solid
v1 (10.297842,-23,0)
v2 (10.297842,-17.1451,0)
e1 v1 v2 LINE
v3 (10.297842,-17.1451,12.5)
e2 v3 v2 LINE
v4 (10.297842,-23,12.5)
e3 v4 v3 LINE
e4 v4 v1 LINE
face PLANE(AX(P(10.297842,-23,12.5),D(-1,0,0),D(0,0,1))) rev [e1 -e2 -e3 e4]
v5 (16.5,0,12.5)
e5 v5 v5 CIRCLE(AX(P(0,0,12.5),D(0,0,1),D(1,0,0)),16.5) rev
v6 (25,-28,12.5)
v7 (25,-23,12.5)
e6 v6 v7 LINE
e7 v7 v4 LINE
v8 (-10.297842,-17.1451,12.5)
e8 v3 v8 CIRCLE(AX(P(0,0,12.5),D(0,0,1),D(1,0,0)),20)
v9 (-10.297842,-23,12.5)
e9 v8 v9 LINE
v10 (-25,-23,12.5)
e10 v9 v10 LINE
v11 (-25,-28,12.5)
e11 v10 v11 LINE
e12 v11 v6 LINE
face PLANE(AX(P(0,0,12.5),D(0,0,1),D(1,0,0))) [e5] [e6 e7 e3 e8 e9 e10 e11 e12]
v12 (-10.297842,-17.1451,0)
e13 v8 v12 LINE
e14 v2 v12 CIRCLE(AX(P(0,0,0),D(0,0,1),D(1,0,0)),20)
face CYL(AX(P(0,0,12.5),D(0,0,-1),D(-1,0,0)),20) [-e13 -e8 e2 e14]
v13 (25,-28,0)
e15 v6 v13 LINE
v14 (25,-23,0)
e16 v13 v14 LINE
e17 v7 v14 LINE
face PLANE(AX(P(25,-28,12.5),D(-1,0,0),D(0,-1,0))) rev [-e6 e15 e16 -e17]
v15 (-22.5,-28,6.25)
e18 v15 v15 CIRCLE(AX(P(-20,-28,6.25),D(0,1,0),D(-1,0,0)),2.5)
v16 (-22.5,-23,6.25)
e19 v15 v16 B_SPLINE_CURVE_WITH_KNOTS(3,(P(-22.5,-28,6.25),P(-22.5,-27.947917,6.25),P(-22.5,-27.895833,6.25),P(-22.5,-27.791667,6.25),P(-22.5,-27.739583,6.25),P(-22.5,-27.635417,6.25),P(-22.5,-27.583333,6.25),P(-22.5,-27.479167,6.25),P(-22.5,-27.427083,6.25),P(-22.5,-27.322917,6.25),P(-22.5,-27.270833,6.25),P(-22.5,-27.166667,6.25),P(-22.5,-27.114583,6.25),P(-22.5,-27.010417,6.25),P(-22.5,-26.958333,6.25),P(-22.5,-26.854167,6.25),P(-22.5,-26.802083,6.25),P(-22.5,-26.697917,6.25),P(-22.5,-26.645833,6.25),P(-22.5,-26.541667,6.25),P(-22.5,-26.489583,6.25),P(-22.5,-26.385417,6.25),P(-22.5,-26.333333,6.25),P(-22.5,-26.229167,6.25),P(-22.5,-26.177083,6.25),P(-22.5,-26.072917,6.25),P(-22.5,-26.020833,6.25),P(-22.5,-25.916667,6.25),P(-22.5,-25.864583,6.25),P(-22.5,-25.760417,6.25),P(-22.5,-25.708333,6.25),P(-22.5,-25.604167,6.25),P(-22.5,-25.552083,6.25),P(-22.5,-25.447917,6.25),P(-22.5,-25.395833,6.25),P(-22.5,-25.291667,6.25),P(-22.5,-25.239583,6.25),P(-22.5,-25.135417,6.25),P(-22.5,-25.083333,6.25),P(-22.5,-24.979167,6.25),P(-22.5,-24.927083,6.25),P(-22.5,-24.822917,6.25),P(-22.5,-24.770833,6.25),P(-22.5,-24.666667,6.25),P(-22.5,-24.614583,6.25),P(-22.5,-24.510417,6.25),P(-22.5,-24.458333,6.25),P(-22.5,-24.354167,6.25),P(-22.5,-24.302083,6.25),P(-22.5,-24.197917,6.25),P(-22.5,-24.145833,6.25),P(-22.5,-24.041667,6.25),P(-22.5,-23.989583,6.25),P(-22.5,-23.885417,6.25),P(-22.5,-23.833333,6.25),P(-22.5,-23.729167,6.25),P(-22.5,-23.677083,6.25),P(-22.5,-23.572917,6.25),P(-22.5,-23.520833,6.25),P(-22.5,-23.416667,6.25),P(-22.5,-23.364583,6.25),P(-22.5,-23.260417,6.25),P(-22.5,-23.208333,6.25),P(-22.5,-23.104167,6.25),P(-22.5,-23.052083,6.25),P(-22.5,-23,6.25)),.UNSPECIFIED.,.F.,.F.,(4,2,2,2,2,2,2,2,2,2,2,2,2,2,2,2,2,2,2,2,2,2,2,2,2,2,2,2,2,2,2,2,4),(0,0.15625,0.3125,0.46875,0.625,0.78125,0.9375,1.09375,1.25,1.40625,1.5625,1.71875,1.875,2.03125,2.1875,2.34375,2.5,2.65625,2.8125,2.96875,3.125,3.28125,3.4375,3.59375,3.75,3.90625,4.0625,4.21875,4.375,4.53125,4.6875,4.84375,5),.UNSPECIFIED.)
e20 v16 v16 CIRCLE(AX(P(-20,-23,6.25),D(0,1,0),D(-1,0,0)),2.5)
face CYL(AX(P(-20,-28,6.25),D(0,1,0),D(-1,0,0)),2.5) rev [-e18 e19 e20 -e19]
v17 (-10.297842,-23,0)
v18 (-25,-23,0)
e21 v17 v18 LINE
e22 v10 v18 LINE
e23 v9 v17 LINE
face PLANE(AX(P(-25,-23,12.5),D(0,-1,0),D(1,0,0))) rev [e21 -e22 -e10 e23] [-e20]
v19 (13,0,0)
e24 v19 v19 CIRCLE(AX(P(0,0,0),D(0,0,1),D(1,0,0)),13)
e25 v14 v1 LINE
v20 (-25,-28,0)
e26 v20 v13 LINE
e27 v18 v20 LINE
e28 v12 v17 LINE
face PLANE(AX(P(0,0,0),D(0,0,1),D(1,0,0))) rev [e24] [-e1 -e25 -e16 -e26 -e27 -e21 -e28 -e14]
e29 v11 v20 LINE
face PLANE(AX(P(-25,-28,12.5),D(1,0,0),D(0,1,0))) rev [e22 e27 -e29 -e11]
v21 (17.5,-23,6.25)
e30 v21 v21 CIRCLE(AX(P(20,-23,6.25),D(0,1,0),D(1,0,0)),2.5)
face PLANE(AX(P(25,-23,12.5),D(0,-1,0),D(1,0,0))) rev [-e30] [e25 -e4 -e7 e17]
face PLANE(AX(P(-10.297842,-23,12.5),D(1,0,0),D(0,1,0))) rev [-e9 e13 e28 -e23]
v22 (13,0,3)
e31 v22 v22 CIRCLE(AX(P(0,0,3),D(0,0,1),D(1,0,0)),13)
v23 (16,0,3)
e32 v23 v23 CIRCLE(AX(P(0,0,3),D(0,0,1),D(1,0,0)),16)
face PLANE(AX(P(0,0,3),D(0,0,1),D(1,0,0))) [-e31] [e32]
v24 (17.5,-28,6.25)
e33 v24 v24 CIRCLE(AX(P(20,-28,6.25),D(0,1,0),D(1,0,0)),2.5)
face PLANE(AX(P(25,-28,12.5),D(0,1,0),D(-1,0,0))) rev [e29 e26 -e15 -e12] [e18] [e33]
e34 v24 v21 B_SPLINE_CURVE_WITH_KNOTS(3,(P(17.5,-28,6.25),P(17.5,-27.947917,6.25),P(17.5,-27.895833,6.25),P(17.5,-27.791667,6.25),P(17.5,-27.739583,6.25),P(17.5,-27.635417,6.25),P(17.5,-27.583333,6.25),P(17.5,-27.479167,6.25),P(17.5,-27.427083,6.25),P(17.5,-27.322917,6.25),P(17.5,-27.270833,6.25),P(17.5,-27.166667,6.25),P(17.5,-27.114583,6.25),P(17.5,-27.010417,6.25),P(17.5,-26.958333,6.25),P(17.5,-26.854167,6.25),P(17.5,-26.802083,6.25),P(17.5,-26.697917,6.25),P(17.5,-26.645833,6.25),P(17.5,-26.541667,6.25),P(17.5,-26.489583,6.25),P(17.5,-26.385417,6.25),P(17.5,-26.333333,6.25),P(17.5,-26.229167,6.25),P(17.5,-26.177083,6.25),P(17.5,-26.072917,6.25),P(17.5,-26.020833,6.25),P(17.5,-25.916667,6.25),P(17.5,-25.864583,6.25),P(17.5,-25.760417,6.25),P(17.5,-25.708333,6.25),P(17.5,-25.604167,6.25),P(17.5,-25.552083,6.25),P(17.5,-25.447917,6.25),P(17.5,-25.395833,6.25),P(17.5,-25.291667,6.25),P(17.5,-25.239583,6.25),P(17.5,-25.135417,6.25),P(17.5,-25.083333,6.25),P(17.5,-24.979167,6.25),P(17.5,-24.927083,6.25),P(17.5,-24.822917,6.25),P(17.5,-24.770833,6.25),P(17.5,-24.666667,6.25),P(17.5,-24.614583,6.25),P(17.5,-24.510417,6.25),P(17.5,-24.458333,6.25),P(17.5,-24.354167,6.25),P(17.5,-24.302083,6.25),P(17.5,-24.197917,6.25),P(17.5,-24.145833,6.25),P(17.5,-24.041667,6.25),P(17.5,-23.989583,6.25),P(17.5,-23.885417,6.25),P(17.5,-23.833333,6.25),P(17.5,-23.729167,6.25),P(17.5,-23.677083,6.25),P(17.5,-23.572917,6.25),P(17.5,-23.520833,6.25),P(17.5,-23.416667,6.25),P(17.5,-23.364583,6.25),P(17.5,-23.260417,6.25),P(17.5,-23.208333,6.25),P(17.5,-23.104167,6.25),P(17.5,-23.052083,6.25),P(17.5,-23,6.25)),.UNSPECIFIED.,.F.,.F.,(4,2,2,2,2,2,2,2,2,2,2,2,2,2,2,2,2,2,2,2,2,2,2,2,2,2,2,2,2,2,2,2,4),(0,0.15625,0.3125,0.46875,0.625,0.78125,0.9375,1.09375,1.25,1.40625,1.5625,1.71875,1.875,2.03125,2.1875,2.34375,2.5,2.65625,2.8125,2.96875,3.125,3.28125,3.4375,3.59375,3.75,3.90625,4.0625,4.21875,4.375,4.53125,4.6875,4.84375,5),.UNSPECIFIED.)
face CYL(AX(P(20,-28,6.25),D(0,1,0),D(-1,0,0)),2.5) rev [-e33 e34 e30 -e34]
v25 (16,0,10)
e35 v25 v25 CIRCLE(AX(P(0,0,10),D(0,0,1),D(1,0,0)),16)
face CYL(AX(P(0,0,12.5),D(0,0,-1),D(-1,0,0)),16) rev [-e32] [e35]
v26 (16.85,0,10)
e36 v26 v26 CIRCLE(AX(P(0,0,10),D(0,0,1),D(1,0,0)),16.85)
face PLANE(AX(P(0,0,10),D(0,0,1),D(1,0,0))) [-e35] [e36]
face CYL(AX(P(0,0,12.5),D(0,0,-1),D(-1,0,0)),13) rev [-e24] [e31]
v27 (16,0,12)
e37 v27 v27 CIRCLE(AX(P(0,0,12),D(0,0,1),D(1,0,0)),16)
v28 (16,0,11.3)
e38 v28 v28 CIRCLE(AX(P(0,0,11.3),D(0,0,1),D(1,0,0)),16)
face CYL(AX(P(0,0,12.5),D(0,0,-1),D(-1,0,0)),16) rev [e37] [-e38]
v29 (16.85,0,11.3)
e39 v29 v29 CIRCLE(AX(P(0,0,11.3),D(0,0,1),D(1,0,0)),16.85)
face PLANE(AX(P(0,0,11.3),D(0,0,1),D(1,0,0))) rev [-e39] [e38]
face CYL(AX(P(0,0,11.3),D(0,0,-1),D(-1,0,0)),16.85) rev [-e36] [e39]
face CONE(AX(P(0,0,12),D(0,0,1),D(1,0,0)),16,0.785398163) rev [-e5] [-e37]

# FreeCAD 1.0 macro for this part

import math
import FreeCAD as App
import Part
import Sketcher
Q = App.Units.Quantity


def edges_at(feature, points):
    """Names of the edges that pass closest to the given points."""
    edges = feature.Shape.Edges
    near = lambda p: min(range(len(edges)), key=lambda i: edges[i].distToShape(Part.Vertex(*p))[0])
    return sorted({f"Edge{near(p) + 1}" for p in points})

doc = App.newDocument("Part")
body = doc.addObject("PartDesign::Body", "Body")

# Sketch on XY plane
sketch1 = doc.addObject("Sketcher::SketchObject", "Sketch")
body.addObject(sketch1)
sketch1.AttachmentSupport = (doc.XY_Plane, [""])
sketch1.MapMode = "FlatFace"
sketch1.addGeometry(Part.LineSegment(App.Vector(-25, -28, 0), App.Vector(25, -28, 0)), False)
sketch1.addGeometry(Part.LineSegment(App.Vector(25, -28, 0), App.Vector(25, -23, 0)), False)
sketch1.addGeometry(Part.LineSegment(App.Vector(25, -23, 0), App.Vector(10, -23, 0)), False)
sketch1.addGeometry(Part.LineSegment(App.Vector(10, -23, 0), App.Vector(10, -17, 0)), False)
sketch1.addGeometry(Part.ArcOfCircle(Part.Circle(App.Vector(0, 0, 0), App.Vector(0, 0, 1), 20), math.radians(-59), math.radians(239)), False)
sketch1.addGeometry(Part.LineSegment(App.Vector(-10, -17, 0), App.Vector(-10, -23, 0)), False)
sketch1.addGeometry(Part.LineSegment(App.Vector(-10, -23, 0), App.Vector(-25, -23, 0)), False)
sketch1.addGeometry(Part.LineSegment(App.Vector(-25, -23, 0), App.Vector(-25, -28, 0)), False)
sketch1.addGeometry(Part.Circle(App.Vector(0, 0, 0), App.Vector(0, 0, 1), 13), False)
sketch1.addConstraint(Sketcher.Constraint("Coincident", 0, 2, 1, 1))
sketch1.addConstraint(Sketcher.Constraint("Coincident", 1, 2, 2, 1))
sketch1.addConstraint(Sketcher.Constraint("Coincident", 2, 2, 3, 1))
sketch1.addConstraint(Sketcher.Constraint("Coincident", 3, 2, 4, 1))
sketch1.addConstraint(Sketcher.Constraint("Coincident", 4, 2, 5, 1))
sketch1.addConstraint(Sketcher.Constraint("Coincident", 5, 2, 6, 1))
sketch1.addConstraint(Sketcher.Constraint("Coincident", 6, 2, 7, 1))
sketch1.addConstraint(Sketcher.Constraint("Coincident", 7, 2, 0, 1))
sketch1.addConstraint(Sketcher.Constraint("Horizontal", 0))
sketch1.addConstraint(Sketcher.Constraint("Vertical", 1))
sketch1.addConstraint(Sketcher.Constraint("Horizontal", 2))
sketch1.addConstraint(Sketcher.Constraint("Vertical", 3))
sketch1.addConstraint(Sketcher.Constraint("Vertical", 5))
sketch1.addConstraint(Sketcher.Constraint("Horizontal", 6))
sketch1.addConstraint(Sketcher.Constraint("Vertical", 7))
sketch1.addConstraint(Sketcher.Constraint("Coincident", 4, 3, -1, 1))
sketch1.addConstraint(Sketcher.Constraint("Coincident", 8, 3, -1, 1))
sketch1.addConstraint(Sketcher.Constraint("Symmetric", 2, 2, 5, 2, -2))
sketch1.addConstraint(Sketcher.Constraint("Equal", 2, 6))
sketch1.addConstraint(Sketcher.Constraint("Diameter", 8, Q("26 mm")))
sketch1.addConstraint(Sketcher.Constraint("Radius", 4, Q("20 mm")))
sketch1.addConstraint(Sketcher.Constraint("DistanceX", 0, 1, 0, 2, Q("50 mm")))
sketch1.addConstraint(Sketcher.Constraint("DistanceY", 1, 1, 1, 2, Q("5 mm")))
sketch1.addConstraint(Sketcher.Constraint("DistanceY", 0, 2, -1, 1, Q("28 mm")))
sketch1.addConstraint(Sketcher.Constraint("DistanceY", 3, 1, 3, 2, Q("5.8549 mm")))
pad1 = doc.addObject("PartDesign::Pad", "Pad")
body.addObject(pad1)
pad1.Profile = sketch1
pad1.Length = 12.5

# Sketch on XY plane
sketch2 = doc.addObject("Sketcher::SketchObject", "Sketch001")
body.addObject(sketch2)
sketch2.AttachmentSupport = (doc.XY_Plane, [""])
sketch2.MapMode = "FlatFace"
sketch2.AttachmentOffset = App.Placement(App.Vector(0, 0, 3), App.Rotation())
sketch2.addGeometry(Part.Circle(App.Vector(0, 0, 0), App.Vector(0, 0, 1), 16), False)
sketch2.addConstraint(Sketcher.Constraint("Coincident", 0, 3, -1, 1))
sketch2.addConstraint(Sketcher.Constraint("Diameter", 0, Q("32 mm")))
pocket1 = doc.addObject("PartDesign::Pocket", "Pocket")
body.addObject(pocket1)
pocket1.Profile = sketch2
pocket1.Type = "ThroughAll"
pocket1.Reversed = True

# Sketch on XZ plane
sketch3 = doc.addObject("Sketcher::SketchObject", "Sketch002")
body.addObject(sketch3)
sketch3.AttachmentSupport = (doc.XZ_Plane, [""])
sketch3.MapMode = "FlatFace"
sketch3.AttachmentOffset = App.Placement(App.Vector(0, 0, 23), App.Rotation())
sketch3.addGeometry(Part.Circle(App.Vector(-20, 6.2, 0), App.Vector(0, 0, 1), 2.5), False)
sketch3.addGeometry(Part.Circle(App.Vector(20, 6.2, 0), App.Vector(0, 0, 1), 2.5), False)
sketch3.addConstraint(Sketcher.Constraint("Equal", 0, 1))
sketch3.addConstraint(Sketcher.Constraint("Symmetric", 0, 3, 1, 3, -2))
sketch3.addConstraint(Sketcher.Constraint("Diameter", 0, Q("5 mm")))
sketch3.addConstraint(Sketcher.Constraint("DistanceX", 0, 3, -1, 1, Q("20 mm")))
sketch3.addConstraint(Sketcher.Constraint("DistanceY", -1, 1, 0, 3, Q("6.25 mm")))
pocket2 = doc.addObject("PartDesign::Pocket", "Pocket001")
body.addObject(pocket2)
pocket2.Profile = sketch3
pocket2.Type = "ThroughAll"
pocket2.Reversed = True

# Sketch on XY plane
sketch4 = doc.addObject("Sketcher::SketchObject", "Sketch003")
body.addObject(sketch4)
sketch4.AttachmentSupport = (doc.XY_Plane, [""])
sketch4.MapMode = "FlatFace"
sketch4.AttachmentOffset = App.Placement(App.Vector(0, 0, 10), App.Rotation())
sketch4.addGeometry(Part.Circle(App.Vector(0, 0, 0), App.Vector(0, 0, 1), 17), False)
sketch4.addGeometry(Part.Circle(App.Vector(0, 0, 0), App.Vector(0, 0, 1), 16), False)
sketch4.addConstraint(Sketcher.Constraint("Coincident", 0, 3, -1, 1))
sketch4.addConstraint(Sketcher.Constraint("Coincident", 1, 3, -1, 1))
sketch4.addConstraint(Sketcher.Constraint("Diameter", 1, Q("32 mm")))
sketch4.addConstraint(Sketcher.Constraint("Diameter", 0, Q("33.7 mm")))
pocket3 = doc.addObject("PartDesign::Pocket", "Pocket002")
body.addObject(pocket3)
pocket3.Profile = sketch4
pocket3.Length = 1.3
pocket3.Reversed = True
doc.recompute()

chamfer = doc.addObject("PartDesign::Chamfer", "Chamfer")
body.addObject(chamfer)
chamfer.Base = (pocket3, edges_at(pocket3, [(-16, 0, 12.5)]))
chamfer.Size = 0.5

doc.recompute()
